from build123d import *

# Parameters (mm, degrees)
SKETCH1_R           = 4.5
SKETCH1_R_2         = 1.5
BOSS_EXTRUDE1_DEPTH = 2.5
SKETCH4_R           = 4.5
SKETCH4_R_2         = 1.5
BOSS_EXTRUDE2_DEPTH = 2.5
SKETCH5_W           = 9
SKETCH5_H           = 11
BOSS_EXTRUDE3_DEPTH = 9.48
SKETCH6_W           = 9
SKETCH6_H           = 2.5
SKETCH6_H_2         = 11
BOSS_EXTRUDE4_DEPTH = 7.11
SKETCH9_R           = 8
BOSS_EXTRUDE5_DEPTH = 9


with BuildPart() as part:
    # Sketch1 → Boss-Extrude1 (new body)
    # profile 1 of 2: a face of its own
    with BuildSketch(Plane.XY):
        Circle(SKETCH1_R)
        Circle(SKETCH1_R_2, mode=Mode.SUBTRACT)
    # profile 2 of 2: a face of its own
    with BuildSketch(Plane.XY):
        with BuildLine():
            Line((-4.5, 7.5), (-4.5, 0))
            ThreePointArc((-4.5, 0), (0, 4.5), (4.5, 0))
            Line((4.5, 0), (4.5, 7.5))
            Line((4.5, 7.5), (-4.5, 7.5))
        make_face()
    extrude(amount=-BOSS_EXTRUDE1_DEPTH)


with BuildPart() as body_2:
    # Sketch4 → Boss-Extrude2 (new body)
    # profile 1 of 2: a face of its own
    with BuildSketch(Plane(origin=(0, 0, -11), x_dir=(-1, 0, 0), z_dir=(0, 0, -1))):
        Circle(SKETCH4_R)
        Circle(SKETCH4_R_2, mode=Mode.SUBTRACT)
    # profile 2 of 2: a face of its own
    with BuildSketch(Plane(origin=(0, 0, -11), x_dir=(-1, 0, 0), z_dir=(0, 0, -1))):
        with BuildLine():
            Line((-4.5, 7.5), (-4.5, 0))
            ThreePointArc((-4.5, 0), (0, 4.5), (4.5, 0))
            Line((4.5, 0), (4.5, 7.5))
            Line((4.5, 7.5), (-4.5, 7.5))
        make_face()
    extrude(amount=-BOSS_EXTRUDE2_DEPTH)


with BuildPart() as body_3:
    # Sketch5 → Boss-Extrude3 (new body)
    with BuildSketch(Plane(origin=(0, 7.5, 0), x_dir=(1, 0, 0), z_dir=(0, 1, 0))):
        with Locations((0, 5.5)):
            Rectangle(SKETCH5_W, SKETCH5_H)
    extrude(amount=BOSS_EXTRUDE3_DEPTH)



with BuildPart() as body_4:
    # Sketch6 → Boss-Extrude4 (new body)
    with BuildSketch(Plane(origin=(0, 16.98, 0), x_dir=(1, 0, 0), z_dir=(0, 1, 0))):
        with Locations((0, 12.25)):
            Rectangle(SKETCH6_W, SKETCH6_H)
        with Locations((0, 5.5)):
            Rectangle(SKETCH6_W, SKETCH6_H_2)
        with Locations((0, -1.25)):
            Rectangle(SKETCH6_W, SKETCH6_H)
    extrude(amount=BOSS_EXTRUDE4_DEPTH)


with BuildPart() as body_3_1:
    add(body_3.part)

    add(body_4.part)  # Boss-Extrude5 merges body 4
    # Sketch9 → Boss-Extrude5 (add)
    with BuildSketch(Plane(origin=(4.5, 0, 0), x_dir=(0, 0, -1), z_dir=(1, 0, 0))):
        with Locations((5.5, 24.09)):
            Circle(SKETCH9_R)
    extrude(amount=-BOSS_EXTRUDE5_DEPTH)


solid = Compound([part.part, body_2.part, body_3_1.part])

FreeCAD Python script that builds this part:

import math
import FreeCAD as App
import Part
import Sketcher

V = App.Vector


def add_polygon(sketch, points):
    """Adds a closed chain of lines whose ends are joined by coincident constraints."""
    first, n = sketch.GeometryCount, len(points)
    for a, b in zip(points, points[1:] + points[:1]):
        sketch.addGeometry(Part.LineSegment(App.Vector(*a, 0), App.Vector(*b, 0)), False)
    for i in range(n):
        sketch.addConstraint(Sketcher.Constraint("Coincident", first + i, 2, first + (i + 1) % n, 1))

doc = App.newDocument("Part")
body = doc.addObject("PartDesign::Body", "Body")

sketch1 = body.newObject("Sketcher::SketchObject", "Sketch")
sketch1.AttachmentSupport = (doc.getObject("XY_Plane"), [""])
sketch1.MapMode = "FlatFace"
sketch1.addGeometry([
    Part.ArcOfCircle(Part.Circle(V(0, 0, 0), V(0, 0, 1), 4.5), math.radians(180), math.radians(360)),
    Part.LineSegment(V(4.5, 0, 0), V(4.5, 7.5, 0)),
    Part.LineSegment(V(4.5, 7.5, 0), V(-4.5, 7.5, 0)),
    Part.LineSegment(V(-4.5, 7.5, 0), V(-4.5, 0, 0)),
    Part.Circle(V(0, 0, 0), V(0, 0, 1), 1.5),
], False)
sketch1.addConstraint([
    Sketcher.Constraint("Tangent", 0, 2, 1, 1),
    Sketcher.Constraint("Coincident", 1, 2, 2, 1),
    Sketcher.Constraint("Coincident", 2, 2, 3, 1),
    Sketcher.Constraint("Tangent", 3, 2, 0, 1),
    Sketcher.Constraint("Vertical", 1),
    Sketcher.Constraint("Horizontal", 2),
    Sketcher.Constraint("Vertical", 3),
    Sketcher.Constraint("Coincident", 0, 3, -1, 1),
    Sketcher.Constraint("Coincident", 4, 3, -1, 1),
    Sketcher.Constraint("Diameter", 4, 3.0),
    Sketcher.Constraint("Radius", 0, 4.5),
    Sketcher.Constraint("DistanceY", 1, 1, 1, 2, 7.5),
])
pad1 = body.newObject("PartDesign::Pad", "Pad")
pad1.Profile = sketch1
pad1.Length = 2.5
pad1.Reversed = True
body2 = doc.addObject("PartDesign::Body", "Body001")

sketch2 = body2.newObject("Sketcher::SketchObject", "Sketch001")
sketch2.AttachmentSupport = (doc.getObject("XY_Plane001"), [""])
sketch2.MapMode = "FlatFace"
sketch2.AttachmentOffset = App.Placement(V(0, 0, -11), App.Rotation())
sketch2.addGeometry([
    Part.ArcOfCircle(Part.Circle(V(0, 0, 0), V(0, 0, 1), 4.5), math.radians(180), math.radians(360)),
    Part.LineSegment(V(-4.5, 0, 0), V(-4.5, 7.5, 0)),
    Part.LineSegment(V(-4.5, 7.5, 0), V(4.5, 7.5, 0)),
    Part.LineSegment(V(4.5, 7.5, 0), V(4.5, 0, 0)),
    Part.Circle(V(0, 0, 0), V(0, 0, 1), 1.5),
], False)
sketch2.addConstraint([
    Sketcher.Constraint("Tangent", 0, 1, 1, 1),
    Sketcher.Constraint("Coincident", 1, 2, 2, 1),
    Sketcher.Constraint("Coincident", 2, 2, 3, 1),
    Sketcher.Constraint("Tangent", 3, 2, 0, 2),
    Sketcher.Constraint("Vertical", 1),
    Sketcher.Constraint("Horizontal", 2),
    Sketcher.Constraint("Vertical", 3),
    Sketcher.Constraint("Coincident", 0, 3, -1, 1),
    Sketcher.Constraint("Coincident", 4, 3, -1, 1),
    Sketcher.Constraint("Diameter", 4, 3.0),
    Sketcher.Constraint("Radius", 0, 4.5),
    Sketcher.Constraint("DistanceY", 1, 1, 1, 2, 7.5),
])
pad2 = body2.newObject("PartDesign::Pad", "Pad001")
pad2.Profile = sketch2
pad2.Length = 2.5
body3 = doc.addObject("PartDesign::Body", "Body002")

sketch3 = body3.newObject("Sketcher::SketchObject", "Sketch002")
sketch3.AttachmentSupport = (doc.getObject("XZ_Plane002"), [""])
sketch3.MapMode = "FlatFace"
sketch3.AttachmentOffset = App.Placement(V(0, 0, -7.5), App.Rotation())
add_polygon(sketch3, [(-4, -11), (-4, 0), (4, 0), (4, -11)])
sketch3.addConstraint([
    Sketcher.Constraint("Vertical", 0),
    Sketcher.Constraint("Horizontal", 1),
    Sketcher.Constraint("Vertical", 2),
    Sketcher.Constraint("Horizontal", 3),
    Sketcher.Constraint("Symmetric", 0, 2, 1, 2, -1, 1),
    Sketcher.Constraint("DistanceX", 1, 1, 1, 2, 9.0),
    Sketcher.Constraint("DistanceY", 0, 1, 0, 2, 11.0),
])
pad3 = body3.newObject("PartDesign::Pad", "Pad002")
pad3.Profile = sketch3
pad3.Length = 9.48
pad3.Reversed = True
body4 = doc.addObject("PartDesign::Body", "Body003")

sketch4 = body4.newObject("Sketcher::SketchObject", "Sketch003")
sketch4.AttachmentSupport = (doc.getObject("XZ_Plane003"), [""])
sketch4.MapMode = "FlatFace"
sketch4.AttachmentOffset = App.Placement(V(0, 0, -16.98), App.Rotation())
add_polygon(sketch4, [(-4, -14), (-4, 2), (4, 2), (4, -14)])
sketch4.addConstraint([
    Sketcher.Constraint("Vertical", 0),
    Sketcher.Constraint("Horizontal", 1),
    Sketcher.Constraint("Vertical", 2),
    Sketcher.Constraint("Horizontal", 3),
    Sketcher.Constraint("DistanceX", 1, 1, 1, 2, 9.0),
    Sketcher.Constraint("DistanceY", 0, 1, 0, 2, 16.0),
    Sketcher.Constraint("DistanceX", 0, 2, -1, 1, 4.5),
    Sketcher.Constraint("DistanceY", -1, 1, 0, 2, 2.5),
])
pad4 = body4.newObject("PartDesign::Pad", "Pad003")
pad4.Profile = sketch4
pad4.Length = 7.11
pad4.Reversed = True
doc.recompute()

boolean = body3.newObject("PartDesign::Boolean", "Boolean")
boolean.Type = "Fuse"
boolean.addObjects([body4])

sketch5 = body3.newObject("Sketcher::SketchObject", "Sketch004")
sketch5.AttachmentSupport = (doc.getObject("YZ_Plane002"), [""])
sketch5.MapMode = "FlatFace"
sketch5.AttachmentOffset = App.Placement(V(0, 0, 4.5), App.Rotation())
sketch5.addGeometry(Part.Circle(V(24, -6, 0), V(0, 0, 1), 8), False)
sketch5.addConstraint([
    Sketcher.Constraint("Diameter", 0, 16.0),
    Sketcher.Constraint("DistanceY", 0, 3, -1, 1, 5.5),
    Sketcher.Constraint("DistanceX", -1, 1, 0, 3, 24.09),
])
pad5 = body3.newObject("PartDesign::Pad", "Pad004")
pad5.Profile = sketch5
pad5.Length = 9
pad5.Reversed = True

doc.recompute()
